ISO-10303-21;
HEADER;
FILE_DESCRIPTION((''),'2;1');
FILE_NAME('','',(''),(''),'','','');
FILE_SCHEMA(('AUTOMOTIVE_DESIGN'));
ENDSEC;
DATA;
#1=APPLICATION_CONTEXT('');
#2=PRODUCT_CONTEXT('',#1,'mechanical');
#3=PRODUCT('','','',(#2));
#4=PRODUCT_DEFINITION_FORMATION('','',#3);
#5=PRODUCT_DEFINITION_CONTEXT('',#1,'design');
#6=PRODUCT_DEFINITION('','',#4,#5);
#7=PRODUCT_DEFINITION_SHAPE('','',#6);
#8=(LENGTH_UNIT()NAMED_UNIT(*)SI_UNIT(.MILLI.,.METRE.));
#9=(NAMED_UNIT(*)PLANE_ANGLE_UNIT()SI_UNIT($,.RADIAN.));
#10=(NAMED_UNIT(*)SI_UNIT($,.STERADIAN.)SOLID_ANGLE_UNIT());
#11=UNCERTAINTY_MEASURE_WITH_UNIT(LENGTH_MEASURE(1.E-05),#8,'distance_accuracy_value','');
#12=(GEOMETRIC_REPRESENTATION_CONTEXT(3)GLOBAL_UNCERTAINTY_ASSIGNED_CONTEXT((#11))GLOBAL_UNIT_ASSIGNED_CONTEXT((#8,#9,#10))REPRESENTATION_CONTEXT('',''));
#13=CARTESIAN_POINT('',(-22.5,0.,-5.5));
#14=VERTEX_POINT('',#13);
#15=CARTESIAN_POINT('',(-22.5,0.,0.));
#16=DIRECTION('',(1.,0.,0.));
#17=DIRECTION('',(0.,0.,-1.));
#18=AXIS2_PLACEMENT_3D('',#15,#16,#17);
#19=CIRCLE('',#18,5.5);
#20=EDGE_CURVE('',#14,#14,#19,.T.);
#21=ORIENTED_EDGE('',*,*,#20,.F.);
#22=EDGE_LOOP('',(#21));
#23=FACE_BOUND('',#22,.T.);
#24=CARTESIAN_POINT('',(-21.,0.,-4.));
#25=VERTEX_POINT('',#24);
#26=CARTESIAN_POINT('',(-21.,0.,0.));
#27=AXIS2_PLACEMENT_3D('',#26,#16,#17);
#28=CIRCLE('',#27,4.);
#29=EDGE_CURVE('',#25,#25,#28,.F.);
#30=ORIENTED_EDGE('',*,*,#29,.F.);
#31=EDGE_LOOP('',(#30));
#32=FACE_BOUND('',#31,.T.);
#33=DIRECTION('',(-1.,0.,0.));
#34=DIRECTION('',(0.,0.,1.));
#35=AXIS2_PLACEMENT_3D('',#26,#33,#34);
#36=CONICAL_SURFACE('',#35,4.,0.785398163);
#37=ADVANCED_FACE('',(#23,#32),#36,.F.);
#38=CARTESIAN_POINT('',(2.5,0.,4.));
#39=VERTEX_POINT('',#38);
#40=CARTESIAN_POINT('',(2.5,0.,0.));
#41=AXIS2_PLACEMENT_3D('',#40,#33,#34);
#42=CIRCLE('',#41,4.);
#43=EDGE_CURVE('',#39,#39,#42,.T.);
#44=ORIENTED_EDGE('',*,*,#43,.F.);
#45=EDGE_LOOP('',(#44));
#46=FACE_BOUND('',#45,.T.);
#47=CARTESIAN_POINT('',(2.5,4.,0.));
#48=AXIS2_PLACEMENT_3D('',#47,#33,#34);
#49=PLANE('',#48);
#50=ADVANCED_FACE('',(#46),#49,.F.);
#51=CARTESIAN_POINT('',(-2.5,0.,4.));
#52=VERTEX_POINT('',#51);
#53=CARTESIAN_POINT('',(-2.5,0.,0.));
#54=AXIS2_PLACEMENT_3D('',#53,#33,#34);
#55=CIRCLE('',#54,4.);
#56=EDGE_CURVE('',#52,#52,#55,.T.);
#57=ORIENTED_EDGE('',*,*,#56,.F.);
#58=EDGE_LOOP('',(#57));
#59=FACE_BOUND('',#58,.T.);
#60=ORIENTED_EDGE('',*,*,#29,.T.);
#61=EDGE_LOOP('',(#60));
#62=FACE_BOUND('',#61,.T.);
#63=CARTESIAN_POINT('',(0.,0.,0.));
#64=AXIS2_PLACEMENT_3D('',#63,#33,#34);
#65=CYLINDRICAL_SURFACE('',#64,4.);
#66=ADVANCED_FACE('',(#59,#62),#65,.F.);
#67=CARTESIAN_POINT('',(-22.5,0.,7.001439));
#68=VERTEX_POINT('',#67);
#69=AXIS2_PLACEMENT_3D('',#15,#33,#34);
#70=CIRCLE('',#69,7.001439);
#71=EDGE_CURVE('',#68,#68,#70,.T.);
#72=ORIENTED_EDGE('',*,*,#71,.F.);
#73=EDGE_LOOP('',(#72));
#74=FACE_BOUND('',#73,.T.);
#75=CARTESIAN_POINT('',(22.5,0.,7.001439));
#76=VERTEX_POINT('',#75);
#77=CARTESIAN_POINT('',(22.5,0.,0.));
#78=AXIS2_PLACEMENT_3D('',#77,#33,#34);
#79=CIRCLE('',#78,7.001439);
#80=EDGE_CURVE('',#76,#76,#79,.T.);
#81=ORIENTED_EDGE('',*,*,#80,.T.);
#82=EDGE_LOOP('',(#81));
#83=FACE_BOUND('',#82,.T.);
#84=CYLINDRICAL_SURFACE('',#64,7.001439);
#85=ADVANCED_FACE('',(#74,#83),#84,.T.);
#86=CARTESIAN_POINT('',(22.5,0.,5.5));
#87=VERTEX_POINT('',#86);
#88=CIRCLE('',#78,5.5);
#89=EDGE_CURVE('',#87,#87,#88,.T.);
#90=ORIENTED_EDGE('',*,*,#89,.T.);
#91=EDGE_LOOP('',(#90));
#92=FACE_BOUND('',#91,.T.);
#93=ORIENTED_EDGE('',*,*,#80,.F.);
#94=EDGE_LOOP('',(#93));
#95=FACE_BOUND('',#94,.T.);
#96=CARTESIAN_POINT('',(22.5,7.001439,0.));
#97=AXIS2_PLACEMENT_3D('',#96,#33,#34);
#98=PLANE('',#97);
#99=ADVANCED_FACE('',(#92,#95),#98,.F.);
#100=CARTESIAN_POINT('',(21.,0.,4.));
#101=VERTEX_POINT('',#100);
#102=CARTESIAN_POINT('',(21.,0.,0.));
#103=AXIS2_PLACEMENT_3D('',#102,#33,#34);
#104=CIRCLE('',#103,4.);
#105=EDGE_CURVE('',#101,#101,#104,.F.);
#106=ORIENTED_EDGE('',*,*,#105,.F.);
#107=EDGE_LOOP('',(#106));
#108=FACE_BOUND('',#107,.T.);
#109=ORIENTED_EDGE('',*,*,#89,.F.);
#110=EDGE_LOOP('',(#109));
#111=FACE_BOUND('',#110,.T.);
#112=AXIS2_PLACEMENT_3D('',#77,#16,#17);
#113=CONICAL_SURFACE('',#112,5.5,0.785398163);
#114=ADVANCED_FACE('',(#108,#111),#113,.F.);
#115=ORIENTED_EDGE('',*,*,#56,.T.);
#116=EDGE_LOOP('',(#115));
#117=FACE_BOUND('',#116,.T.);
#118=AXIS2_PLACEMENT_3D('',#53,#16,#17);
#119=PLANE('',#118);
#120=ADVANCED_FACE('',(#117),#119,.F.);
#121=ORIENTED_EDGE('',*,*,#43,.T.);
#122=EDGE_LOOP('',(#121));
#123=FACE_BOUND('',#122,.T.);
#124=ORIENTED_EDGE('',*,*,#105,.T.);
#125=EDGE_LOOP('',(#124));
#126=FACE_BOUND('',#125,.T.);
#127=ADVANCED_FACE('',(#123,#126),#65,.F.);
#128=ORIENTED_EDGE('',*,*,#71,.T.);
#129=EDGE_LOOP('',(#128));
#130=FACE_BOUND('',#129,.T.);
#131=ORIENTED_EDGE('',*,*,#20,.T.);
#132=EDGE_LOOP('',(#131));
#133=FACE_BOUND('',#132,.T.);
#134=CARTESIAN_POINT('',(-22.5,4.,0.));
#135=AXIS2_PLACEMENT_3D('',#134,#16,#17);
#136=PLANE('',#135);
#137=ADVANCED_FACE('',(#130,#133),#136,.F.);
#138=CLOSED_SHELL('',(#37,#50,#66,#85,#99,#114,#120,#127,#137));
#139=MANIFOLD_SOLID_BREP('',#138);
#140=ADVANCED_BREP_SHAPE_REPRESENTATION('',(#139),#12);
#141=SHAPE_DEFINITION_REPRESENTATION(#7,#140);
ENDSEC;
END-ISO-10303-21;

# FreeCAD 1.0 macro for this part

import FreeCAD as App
import Part
import Sketcher
Q = App.Units.Quantity


def edges_at(feature, points):
    """Names of the edges that pass closest to the given points."""
    edges = feature.Shape.Edges
    near = lambda p: min(range(len(edges)), key=lambda i: edges[i].distToShape(Part.Vertex(*p))[0])
    return sorted({f"Edge{near(p) + 1}" for p in points})


def add_polygon(sketch, points):
    """Adds a closed chain of lines whose ends are joined by coincident constraints."""
    first, n = sketch.GeometryCount, len(points)
    for a, b in zip(points, points[1:] + points[:1]):
        sketch.addGeometry(Part.LineSegment(App.Vector(*a, 0), App.Vector(*b, 0)), False)
    for i in range(n):
        sketch.addConstraint(Sketcher.Constraint("Coincident", first + i, 2, first + (i + 1) % n, 1))

doc = App.newDocument("Part")
body = doc.addObject("PartDesign::Body", "Body")

sketch1 = body.newObject("Sketcher::SketchObject", "Sketch")
sketch1.AttachmentSupport = (doc.getObject("XY_Plane"), [""])
sketch1.MapMode = "FlatFace"
add_polygon(sketch1, [(-2.5, 4), (-2.5, 0), (2.5, 0), (2.5, 4), (22.5, 4), (22.5, 7.001439), (-22.5, 7.001439), (-22.5, 4)])
sketch1.addConstraint([
    Sketcher.Constraint("Vertical", 0),
    Sketcher.Constraint("Horizontal", 1),
    Sketcher.Constraint("Vertical", 2),
    Sketcher.Constraint("Horizontal", 3),
    Sketcher.Constraint("Vertical", 4),
    Sketcher.Constraint("Horizontal", 5),
    Sketcher.Constraint("Vertical", 6),
    Sketcher.Constraint("Horizontal", 7),
    Sketcher.Constraint("Symmetric", 0, 2, 1, 2, -1, 1),
    Sketcher.Constraint("Symmetric", 3, 2, 6, 2, -2),
    Sketcher.Constraint("DistanceX", 1, 1, 1, 2, Q("5 mm")),
    Sketcher.Constraint("DistanceX", 3, 1, 3, 2, Q("20 mm")),
    Sketcher.Constraint("DistanceY", 0, 2, 0, 1, Q("4 mm")),
    Sketcher.Constraint("DistanceY", 4, 1, 4, 2, Q("3.001439 mm")),
])
revolution = body.newObject("PartDesign::Revolution", "Revolution")
revolution.Profile = sketch1
revolution.ReferenceAxis = (sketch1, ["H_Axis"])
revolution.Angle = 360
doc.recompute()

chamfer = body.newObject("PartDesign::Chamfer", "Chamfer")
chamfer.Base = (revolution, edges_at(revolution, [(22.5, 0, -4), (-22.5, 0, -4)]))
chamfer.Size = 1.5

doc.recompute()
